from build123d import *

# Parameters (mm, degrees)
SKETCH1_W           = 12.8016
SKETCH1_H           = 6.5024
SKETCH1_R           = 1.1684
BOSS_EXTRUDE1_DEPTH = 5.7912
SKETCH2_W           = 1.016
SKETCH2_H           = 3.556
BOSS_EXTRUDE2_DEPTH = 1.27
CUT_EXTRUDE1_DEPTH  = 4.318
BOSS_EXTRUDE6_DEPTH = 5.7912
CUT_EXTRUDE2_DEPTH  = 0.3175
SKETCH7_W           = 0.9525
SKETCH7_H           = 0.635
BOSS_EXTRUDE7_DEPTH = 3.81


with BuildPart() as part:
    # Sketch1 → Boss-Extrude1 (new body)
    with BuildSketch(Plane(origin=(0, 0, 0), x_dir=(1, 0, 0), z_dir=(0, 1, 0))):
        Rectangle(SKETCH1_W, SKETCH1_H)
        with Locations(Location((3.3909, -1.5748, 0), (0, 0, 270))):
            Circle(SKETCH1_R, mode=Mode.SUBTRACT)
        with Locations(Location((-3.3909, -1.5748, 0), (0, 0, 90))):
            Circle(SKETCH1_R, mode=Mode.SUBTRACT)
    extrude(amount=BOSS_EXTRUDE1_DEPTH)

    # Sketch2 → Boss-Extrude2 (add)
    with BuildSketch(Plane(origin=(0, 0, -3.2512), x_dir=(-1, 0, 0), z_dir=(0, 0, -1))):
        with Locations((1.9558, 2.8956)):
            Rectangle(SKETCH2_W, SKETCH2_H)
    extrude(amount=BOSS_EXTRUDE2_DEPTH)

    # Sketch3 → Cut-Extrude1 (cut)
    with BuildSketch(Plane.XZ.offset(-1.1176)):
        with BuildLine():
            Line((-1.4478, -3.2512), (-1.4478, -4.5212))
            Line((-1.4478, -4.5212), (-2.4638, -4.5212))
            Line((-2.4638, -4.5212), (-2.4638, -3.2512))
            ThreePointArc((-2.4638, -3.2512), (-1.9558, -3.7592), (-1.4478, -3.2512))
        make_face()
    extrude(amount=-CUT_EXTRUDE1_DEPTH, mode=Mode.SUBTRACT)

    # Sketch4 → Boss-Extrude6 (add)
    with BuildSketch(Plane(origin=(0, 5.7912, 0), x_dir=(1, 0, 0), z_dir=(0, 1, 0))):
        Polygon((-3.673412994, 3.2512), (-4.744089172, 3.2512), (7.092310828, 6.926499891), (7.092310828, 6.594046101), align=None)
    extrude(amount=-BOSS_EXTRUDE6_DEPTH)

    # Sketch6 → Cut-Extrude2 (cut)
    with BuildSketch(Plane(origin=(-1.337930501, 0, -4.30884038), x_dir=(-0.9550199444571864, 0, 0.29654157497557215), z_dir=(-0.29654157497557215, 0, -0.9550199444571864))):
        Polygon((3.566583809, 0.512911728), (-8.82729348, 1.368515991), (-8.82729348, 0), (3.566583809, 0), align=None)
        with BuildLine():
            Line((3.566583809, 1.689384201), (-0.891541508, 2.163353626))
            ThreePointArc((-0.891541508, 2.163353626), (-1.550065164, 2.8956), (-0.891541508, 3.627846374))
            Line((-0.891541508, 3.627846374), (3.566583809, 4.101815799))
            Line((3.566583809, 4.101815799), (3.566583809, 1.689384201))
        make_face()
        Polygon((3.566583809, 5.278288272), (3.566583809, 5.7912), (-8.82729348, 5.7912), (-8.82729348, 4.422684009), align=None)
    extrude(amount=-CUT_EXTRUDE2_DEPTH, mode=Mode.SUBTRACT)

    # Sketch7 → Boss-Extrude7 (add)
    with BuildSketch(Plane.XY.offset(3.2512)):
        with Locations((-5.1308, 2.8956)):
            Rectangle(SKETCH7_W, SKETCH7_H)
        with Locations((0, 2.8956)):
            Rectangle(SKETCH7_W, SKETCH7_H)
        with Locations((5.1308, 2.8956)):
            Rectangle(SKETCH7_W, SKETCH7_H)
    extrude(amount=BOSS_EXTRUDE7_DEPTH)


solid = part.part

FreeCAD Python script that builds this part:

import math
import FreeCAD as App
import Part
import Sketcher
Q = App.Units.Quantity


def add_polygon(sketch, points):
    """Adds a closed chain of lines whose ends are joined by coincident constraints."""
    first, n = sketch.GeometryCount, len(points)
    for a, b in zip(points, points[1:] + points[:1]):
        sketch.addGeometry(Part.LineSegment(App.Vector(*a, 0), App.Vector(*b, 0)), False)
    for i in range(n):
        sketch.addConstraint(Sketcher.Constraint("Coincident", first + i, 2, first + (i + 1) % n, 1))

doc = App.newDocument("Part")
body = doc.addObject("PartDesign::Body", "Body")

# Sketch on XZ plane
sketch1 = body.newObject("Sketcher::SketchObject", "Sketch")
sketch1.AttachmentSupport = (doc.getObject("XZ_Plane"), [""])
sketch1.MapMode = "FlatFace"
add_polygon(sketch1, [(-6.4, -3.3), (-6.4, 3.3), (6.4, 3.3), (6.4, -3.3)])  # lines 0-3
sketch1.addGeometry(Part.Circle(App.Vector(3.4, 1.6, 0), App.Vector(0, 0, 1), 1.2), False)  # 4
sketch1.addGeometry(Part.Circle(App.Vector(-3.4, 1.6, 0), App.Vector(0, 0, 1), 1.2), False)  # 5
sketch1.addConstraint(Sketcher.Constraint("Vertical", 0))
sketch1.addConstraint(Sketcher.Constraint("Horizontal", 1))
sketch1.addConstraint(Sketcher.Constraint("Vertical", 2))
sketch1.addConstraint(Sketcher.Constraint("Horizontal", 3))
sketch1.addConstraint(Sketcher.Constraint("Equal", 4, 5))
sketch1.addConstraint(Sketcher.Constraint("Symmetric", 0, 2, 2, 2, -1, 1))
sketch1.addConstraint(Sketcher.Constraint("Symmetric", 4, 3, 5, 3, -2))
sketch1.addConstraint(Sketcher.Constraint("Diameter", 4, Q("0.092 in")))
sketch1.addConstraint(Sketcher.Constraint("DistanceX", 1, 1, 1, 2, Q("0.504 in")))
sketch1.addConstraint(Sketcher.Constraint("DistanceY", 0, 1, 0, 2, Q("0.256 in")))
sketch1.addConstraint(Sketcher.Constraint("DistanceY", 2, 2, 4, 3, Q("0.19 in")))
sketch1.addConstraint(Sketcher.Constraint("DistanceX", 5, 3, 4, 3, Q("0.267 in")))
pad1 = body.newObject("PartDesign::Pad", "Pad")
pad1.Profile = sketch1
pad1.Length = Q("0.228 in")
pad1.Reversed = True

# Sketch on XY plane
sketch2 = body.newObject("Sketcher::SketchObject", "Sketch001")
sketch2.AttachmentSupport = (doc.getObject("XY_Plane"), [""])
sketch2.MapMode = "FlatFace"
sketch2.AttachmentOffset = App.Placement(App.Vector(0, 0, -0.128 * 25.4), App.Rotation())
add_polygon(sketch2, [(-1.4, 4.7), (-1.4, 1.1), (-2.5, 1.1), (-2.5, 4.7)])  # lines 0-3
sketch2.addConstraint(Sketcher.Constraint("Vertical", 0))
sketch2.addConstraint(Sketcher.Constraint("Horizontal", 1))
sketch2.addConstraint(Sketcher.Constraint("Vertical", 2))
sketch2.addConstraint(Sketcher.Constraint("Horizontal", 3))
sketch2.addConstraint(Sketcher.Constraint("DistanceX", 1, 2, 1, 1, Q("0.04 in")))
sketch2.addConstraint(Sketcher.Constraint("DistanceY", 0, 2, 0, 1, Q("0.14 in")))
sketch2.addConstraint(Sketcher.Constraint("DistanceX", 0, 2, -1, 1, Q("0.057 in")))
sketch2.addConstraint(Sketcher.Constraint("DistanceY", -1, 1, 0, 2, Q("0.044 in")))
pad2 = body.newObject("PartDesign::Pad", "Pad001")
pad2.Profile = sketch2
pad2.Length = Q("0.05 in")
pad2.Reversed = True

# Sketch on XZ plane
sketch3 = body.newObject("Sketcher::SketchObject", "Sketch002")
sketch3.AttachmentSupport = (doc.getObject("XZ_Plane"), [""])
sketch3.MapMode = "FlatFace"
sketch3.AttachmentOffset = App.Placement(App.Vector(0, 0, -0.044 * 25.4), App.Rotation())
sketch3.addGeometry(Part.LineSegment(App.Vector(-1.4, -4.5, 0), App.Vector(-1.4, -3.3, 0)), False)
sketch3.addGeometry(Part.ArcOfCircle(Part.Circle(App.Vector(-2, -3.3, 0), App.Vector(0, 0, 1), 0.5), math.radians(180), math.radians(360)), False)
sketch3.addGeometry(Part.LineSegment(App.Vector(-2.5, -3.3, 0), App.Vector(-2.5, -4.5, 0)), False)
sketch3.addGeometry(Part.LineSegment(App.Vector(-2.5, -4.5, 0), App.Vector(-1.4, -4.5, 0)), False)
sketch3.addConstraint(Sketcher.Constraint("Tangent", 0, 2, 1, 2))
sketch3.addConstraint(Sketcher.Constraint("Tangent", 1, 1, 2, 1))
sketch3.addConstraint(Sketcher.Constraint("Coincident", 2, 2, 3, 1))
sketch3.addConstraint(Sketcher.Constraint("Coincident", 3, 2, 0, 1))
sketch3.addConstraint(Sketcher.Constraint("Vertical", 0))
sketch3.addConstraint(Sketcher.Constraint("Vertical", 2))
sketch3.addConstraint(Sketcher.Constraint("Horizontal", 3))
sketch3.addConstraint(Sketcher.Constraint("Radius", 1, Q("0.02 in")))
sketch3.addConstraint(Sketcher.Constraint("DistanceY", 0, 1, 0, 2, Q("0.05 in")))
sketch3.addConstraint(Sketcher.Constraint("DistanceX", 1, 3, -1, 1, Q("0.077 in")))
sketch3.addConstraint(Sketcher.Constraint("DistanceY", 1, 3, -1, 1, Q("0.128 in")))
pocket1 = body.newObject("PartDesign::Pocket", "Pocket")
pocket1.Profile = sketch3
pocket1.Length = Q("0.17 in")

# Sketch on XZ plane
sketch4 = body.newObject("Sketcher::SketchObject", "Sketch003")
sketch4.AttachmentSupport = (doc.getObject("XZ_Plane"), [""])
sketch4.MapMode = "FlatFace"
sketch4.AttachmentOffset = App.Placement(App.Vector(0, 0, -0.228 * 25.4), App.Rotation())
add_polygon(sketch4, [(-4.74, -3.25), (-3.67, -3.25), (7.09, -6.59), (7.09, -6.93)])  # lines 0-3
sketch4.addConstraint(Sketcher.Constraint("Horizontal", 0))
sketch4.addConstraint(Sketcher.Constraint("Vertical", 2))
sketch4.addConstraint(Sketcher.Constraint("Parallel", 1, 3))
sketch4.addConstraint(Sketcher.Constraint("Angle", 1, Q("-17.25 deg")))
sketch4.addConstraint(Sketcher.Constraint("DistanceY", 0, 2, -1, 1, Q("0.128 in")))
sketch4.addConstraint(Sketcher.Constraint("DistanceX", 3, 2, 1, 2, Q("0.466 in")))
sketch4.addConstraint(Sketcher.Constraint("DistanceX", 0, 1, 0, 2, 1.070676))
sketch4.addConstraint(Sketcher.Constraint("DistanceX", -1, 1, 1, 2, 7.092311))
pad3 = body.newObject("PartDesign::Pad", "Pad002")
pad3.Profile = sketch4
pad3.Length = Q("0.228 in")

# Sketch on an angled plane
sketch5 = body.newObject("Sketcher::SketchObject", "Sketch004")
sketch5.Placement = App.Placement(App.Vector(-1.337931, 0, -4.30884), App.Rotation(App.Vector(-0.955019944, 0, 0.296541575), App.Vector(0, 0.999999999, 0), App.Vector(-0.296541575, 0, -0.955019944), "ZXY"))
add_polygon(sketch5, [(3.6, 0.5), (-8.8, 1.4), (-8.8, 0), (3.6, 0)])  # lines 0-3
sketch5.addGeometry(Part.LineSegment(App.Vector(-0.9, 2.2, 0), App.Vector(3.6, 1.7, 0)), False)  # 4
sketch5.addGeometry(Part.LineSegment(App.Vector(3.6, 1.7, 0), App.Vector(3.6, 4.1, 0)), False)  # 5
sketch5.addGeometry(Part.LineSegment(App.Vector(3.6, 4.1, 0), App.Vector(-0.9, 3.6, 0)), False)  # 6
sketch5.addGeometry(Part.ArcOfCircle(Part.Circle(App.Vector(-0.8, 2.9, 0), App.Vector(0, 0, 1), 0.7), math.radians(96), math.radians(264)), False)  # 7
add_polygon(sketch5, [(3.6, 5.3), (3.6, 5.8), (-8.8, 5.8), (-8.8, 4.4)])  # lines 8-11
sketch5.addConstraint(Sketcher.Constraint("Coincident", 4, 2, 5, 1))
sketch5.addConstraint(Sketcher.Constraint("Coincident", 5, 2, 6, 1))
sketch5.addConstraint(Sketcher.Constraint("Tangent", 6, 2, 7, 1))
sketch5.addConstraint(Sketcher.Constraint("Tangent", 7, 2, 4, 1))
sketch5.addConstraint(Sketcher.Constraint("Vertical", 1))
sketch5.addConstraint(Sketcher.Constraint("Horizontal", 2))
sketch5.addConstraint(Sketcher.Constraint("Vertical", 3))
sketch5.addConstraint(Sketcher.Constraint("Vertical", 5))
sketch5.addConstraint(Sketcher.Constraint("Vertical", 8))
sketch5.addConstraint(Sketcher.Constraint("Horizontal", 9))
sketch5.addConstraint(Sketcher.Constraint("Vertical", 10))
sketch5.addConstraint(Sketcher.Constraint("PointOnObject", 1, 2, -1))
sketch5.addConstraint(Sketcher.Constraint("Vertical", 3, 2, 4, 2))
sketch5.addConstraint(Sketcher.Constraint("Vertical", 6, 2, 7, 2))
sketch5.addConstraint(Sketcher.Constraint("Vertical", 5, 2, 8, 2))
sketch5.addConstraint(Sketcher.Constraint("Vertical", 1, 2, 9, 2))
sketch5.addConstraint(Sketcher.Constraint("Equal", 3, 8))
sketch5.addConstraint(Sketcher.Constraint("Equal", 1, 10))
sketch5.addConstraint(Sketcher.Constraint("DistanceY", -1, 1, 7, 3, Q("0.114 in")))
sketch5.addConstraint(Sketcher.Constraint("DistanceY", -1, 1, 8, 2, Q("0.228 in")))
sketch5.addConstraint(Sketcher.Constraint("DistanceX", 6, 2, -1, 1, Q("0.0351001 in")))
sketch5.addConstraint(Sketcher.Constraint("Radius", 7, 0.736373))
sketch5.addConstraint(Sketcher.Constraint("DistanceY", 3, 1, 3, 2, 0.512912))
sketch5.addConstraint(Sketcher.Constraint("DistanceY", 5, 1, 5, 2, 2.412432))
sketch5.addConstraint(Sketcher.Constraint("DistanceX", 0, 2, 7, 3, 8.013601))
sketch5.addConstraint(Sketcher.Constraint("DistanceY", 0, 2, 5, 2, 2.7333))
sketch5.addConstraint(Sketcher.Constraint("Distance", 4, 4.48325))
pocket2 = body.newObject("PartDesign::Pocket", "Pocket001")
pocket2.Profile = sketch5
pocket2.Length = Q("0.0125 in")

# Sketch on XY plane
sketch6 = body.newObject("Sketcher::SketchObject", "Sketch005")
sketch6.AttachmentSupport = (doc.getObject("XY_Plane"), [""])
sketch6.MapMode = "FlatFace"
sketch6.AttachmentOffset = App.Placement(App.Vector(0, 0, 0.128 * 25.4), App.Rotation())
add_polygon(sketch6, [(-5.6, 3.2), (-5.6, 2.6), (-4.7, 2.6), (-4.7, 3.2)])  # lines 0-3
add_polygon(sketch6, [(-0.5, 3.2), (-0.5, 2.6), (0.5, 2.6), (0.5, 3.2)])  # lines 4-7
add_polygon(sketch6, [(4.7, 3.2), (4.7, 2.6), (5.6, 2.6), (5.6, 3.2)])  # lines 8-11
sketch6.addConstraint(Sketcher.Constraint("Vertical", 0))
sketch6.addConstraint(Sketcher.Constraint("Horizontal", 1))
sketch6.addConstraint(Sketcher.Constraint("Vertical", 2))
sketch6.addConstraint(Sketcher.Constraint("Horizontal", 3))
sketch6.addConstraint(Sketcher.Constraint("Vertical", 4))
sketch6.addConstraint(Sketcher.Constraint("Horizontal", 5))
sketch6.addConstraint(Sketcher.Constraint("Vertical", 6))
sketch6.addConstraint(Sketcher.Constraint("Horizontal", 7))
sketch6.addConstraint(Sketcher.Constraint("Vertical", 8))
sketch6.addConstraint(Sketcher.Constraint("Horizontal", 9))
sketch6.addConstraint(Sketcher.Constraint("Vertical", 10))
sketch6.addConstraint(Sketcher.Constraint("Horizontal", 11))
sketch6.addConstraint(Sketcher.Constraint("Symmetric", 1, 2, 8, 2, -2))
sketch6.addConstraint(Sketcher.Constraint("Symmetric", 3, 2, 10, 2, -2))
sketch6.addConstraint(Sketcher.Constraint("Horizontal", 1, 2, 4, 2))
sketch6.addConstraint(Sketcher.Constraint("Horizontal", 3, 2, 6, 2))
sketch6.addConstraint(Sketcher.Constraint("Equal", 3, 5))
sketch6.addConstraint(Sketcher.Constraint("DistanceY", 0, 2, 0, 1, Q("0.025 in")))
sketch6.addConstraint(Sketcher.Constraint("DistanceX", 1, 1, 1, 2, Q("0.0375 in")))
sketch6.addConstraint(Sketcher.Constraint("DistanceX", 0, 2, 4, 2, Q("0.202 in")))
sketch6.addConstraint(Sketcher.Constraint("DistanceX", 4, 2, 8, 2, Q("0.202 in")))
sketch6.addConstraint(Sketcher.Constraint("DistanceY", -1, 1, 0, 2, Q("0.1015 in")))
pad4 = body.newObject("PartDesign::Pad", "Pad003")
pad4.Profile = sketch6
pad4.Length = Q("0.15 in")

doc.recompute()
